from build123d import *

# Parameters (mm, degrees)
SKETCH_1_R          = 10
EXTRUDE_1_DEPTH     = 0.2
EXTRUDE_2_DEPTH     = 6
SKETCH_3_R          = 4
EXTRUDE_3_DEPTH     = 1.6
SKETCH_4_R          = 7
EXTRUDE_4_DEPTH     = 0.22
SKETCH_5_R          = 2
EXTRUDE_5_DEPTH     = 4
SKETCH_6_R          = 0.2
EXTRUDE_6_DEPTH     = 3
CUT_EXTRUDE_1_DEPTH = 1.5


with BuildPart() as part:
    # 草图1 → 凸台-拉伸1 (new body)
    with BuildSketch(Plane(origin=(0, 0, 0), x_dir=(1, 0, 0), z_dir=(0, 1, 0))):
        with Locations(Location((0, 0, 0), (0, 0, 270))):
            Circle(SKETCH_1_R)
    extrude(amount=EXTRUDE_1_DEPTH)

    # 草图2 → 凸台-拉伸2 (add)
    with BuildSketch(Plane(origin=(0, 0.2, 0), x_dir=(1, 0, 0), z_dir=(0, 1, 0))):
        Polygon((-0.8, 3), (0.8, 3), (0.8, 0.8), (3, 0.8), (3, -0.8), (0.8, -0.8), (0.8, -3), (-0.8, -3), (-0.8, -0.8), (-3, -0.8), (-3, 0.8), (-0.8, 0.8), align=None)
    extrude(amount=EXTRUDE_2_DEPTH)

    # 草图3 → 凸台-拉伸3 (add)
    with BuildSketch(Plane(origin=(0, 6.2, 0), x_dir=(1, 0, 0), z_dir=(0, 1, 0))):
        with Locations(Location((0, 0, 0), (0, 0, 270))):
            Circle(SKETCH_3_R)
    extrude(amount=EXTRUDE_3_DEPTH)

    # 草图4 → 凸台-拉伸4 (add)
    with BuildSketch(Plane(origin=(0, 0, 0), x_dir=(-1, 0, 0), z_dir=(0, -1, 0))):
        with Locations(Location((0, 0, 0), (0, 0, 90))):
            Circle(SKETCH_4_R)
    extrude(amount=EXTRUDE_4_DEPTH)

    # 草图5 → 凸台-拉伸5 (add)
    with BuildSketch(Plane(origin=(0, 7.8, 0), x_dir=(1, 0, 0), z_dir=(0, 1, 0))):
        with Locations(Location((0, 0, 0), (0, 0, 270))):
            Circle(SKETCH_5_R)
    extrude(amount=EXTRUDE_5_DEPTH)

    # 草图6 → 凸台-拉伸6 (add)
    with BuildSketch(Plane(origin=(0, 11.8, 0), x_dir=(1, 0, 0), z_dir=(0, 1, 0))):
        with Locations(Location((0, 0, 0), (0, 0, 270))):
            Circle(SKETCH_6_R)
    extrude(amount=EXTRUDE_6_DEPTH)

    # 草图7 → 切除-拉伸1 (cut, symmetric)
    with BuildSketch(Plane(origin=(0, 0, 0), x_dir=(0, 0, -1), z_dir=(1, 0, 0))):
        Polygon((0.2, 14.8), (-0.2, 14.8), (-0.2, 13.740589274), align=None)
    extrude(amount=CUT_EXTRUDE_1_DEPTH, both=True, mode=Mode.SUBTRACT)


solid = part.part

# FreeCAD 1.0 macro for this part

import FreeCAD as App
import Part
import Sketcher

V = App.Vector
Q = App.Units.Quantity


def add_polygon(sketch, points):
    """Adds a closed chain of lines whose ends are joined by coincident constraints."""
    first, n = sketch.GeometryCount, len(points)
    for a, b in zip(points, points[1:] + points[:1]):
        sketch.addGeometry(Part.LineSegment(App.Vector(*a, 0), App.Vector(*b, 0)), False)
    for i in range(n):
        sketch.addConstraint(Sketcher.Constraint("Coincident", first + i, 2, first + (i + 1) % n, 1))

doc = App.newDocument("Part")
params = doc.addObject("Spreadsheet::Sheet", "Params")
for row, (alias, value) in enumerate([
    ("sketch1_diameter", "20 mm"),
    ("pad1_length", "0.2 mm"),
    ("sketch2_width", "1.6 mm"),
    ("sketch2_width2", "2.2 mm"),
    ("pad2_length", "6 mm"),
    ("sketch3_diameter", "8 mm"),
    ("pad3_length", "1.6 mm"),
    ("sketch4_diameter", "14 mm"),
    ("pad4_length", "0.22 mm"),
    ("sketch5_diameter", "4 mm"),
    ("pad5_length", "4 mm"),
    ("sketch6_diameter", "0.4 mm"),
    ("pad6_length", "3 mm"),
    ("sketch7_height", "0.4 mm"),
    ("pocket1_length", "3 mm"),
], start=1):
    params.set(f"A{row}", alias)
    params.set(f"B{row}", "=" + value)
    params.setAlias(f"B{row}", alias)

body = doc.addObject("PartDesign::Body", "Body")

# Sketch on XZ plane
sketch1 = doc.addObject("Sketcher::SketchObject", "Sketch")
body.addObject(sketch1)
sketch1.AttachmentSupport = (doc.XZ_Plane, [""])
sketch1.MapMode = "FlatFace"
sketch1.addGeometry(Part.Circle(V(0, 0, 0), V(0, 0, 1), 10), False)
sketch1.addConstraint([
    Sketcher.Constraint("Coincident", 0, 3, -1, 1),
    Sketcher.Constraint("Diameter", 0, Q("20 mm")),
])
sketch1.setExpression("Constraints[1]", "Params.sketch1_diameter")
pad1 = doc.addObject("PartDesign::Pad", "Pad")
body.addObject(pad1)
pad1.Profile = sketch1
pad1.setExpression("Length", "Params.pad1_length")
pad1.Reversed = True

# Sketch on XZ plane
sketch2 = doc.addObject("Sketcher::SketchObject", "Sketch001")
body.addObject(sketch2)
sketch2.AttachmentSupport = (doc.XZ_Plane, [""])
sketch2.MapMode = "FlatFace"
sketch2.AttachmentOffset = App.Placement(V(0, 0, -0.2), App.Rotation())
add_polygon(sketch2, [(0.8, -3), (-0.8, -3), (-0.8, -0.8), (-3, -0.8), (-3, 0.8), (-0.8, 0.8), (-0.8, 3), (0.8, 3), (0.8, 0.8), (3, 0.8), (3, -0.8), (0.8, -0.8)])  # lines 0-11
sketch2.addConstraint([
    Sketcher.Constraint("Horizontal", 0),
    Sketcher.Constraint("Vertical", 1),
    Sketcher.Constraint("Horizontal", 2),
    Sketcher.Constraint("Vertical", 3),
    Sketcher.Constraint("Horizontal", 4),
    Sketcher.Constraint("Vertical", 5),
    Sketcher.Constraint("Horizontal", 6),
    Sketcher.Constraint("Vertical", 7),
    Sketcher.Constraint("Horizontal", 8),
    Sketcher.Constraint("Vertical", 9),
    Sketcher.Constraint("Horizontal", 10),
    Sketcher.Constraint("Vertical", 11),
    Sketcher.Constraint("Symmetric", 0, 2, 6, 2, -1, 1),
    Sketcher.Constraint("Symmetric", 2, 2, 8, 2, -1, 1),
    Sketcher.Constraint("Symmetric", 4, 2, 10, 2, -1, 1),
    Sketcher.Constraint("Symmetric", 4, 2, 7, 2, -2),
    Sketcher.Constraint("Equal", 10, 1),
    Sketcher.Constraint("Equal", 6, 3),
    Sketcher.Constraint("DistanceX", 0, 2, 0, 1, Q("1.6 mm")),
    Sketcher.Constraint("DistanceX", 2, 2, 2, 1, Q("2.2 mm")),
])
sketch2.setExpression("Constraints[30]", "Params.sketch2_width")
sketch2.setExpression("Constraints[31]", "Params.sketch2_width2")
pad2 = doc.addObject("PartDesign::Pad", "Pad001")
body.addObject(pad2)
pad2.Profile = sketch2
pad2.setExpression("Length", "Params.pad2_length")
pad2.Reversed = True

# Sketch on XZ plane
sketch3 = doc.addObject("Sketcher::SketchObject", "Sketch002")
body.addObject(sketch3)
sketch3.AttachmentSupport = (doc.XZ_Plane, [""])
sketch3.MapMode = "FlatFace"
sketch3.AttachmentOffset = App.Placement(V(0, 0, -6.2), App.Rotation())
sketch3.addGeometry(Part.Circle(V(0, 0, 0), V(0, 0, 1), 4), False)
sketch3.addConstraint([
    Sketcher.Constraint("Coincident", 0, 3, -1, 1),
    Sketcher.Constraint("Diameter", 0, Q("8 mm")),
])
sketch3.setExpression("Constraints[1]", "Params.sketch3_diameter")
pad3 = doc.addObject("PartDesign::Pad", "Pad002")
body.addObject(pad3)
pad3.Profile = sketch3
pad3.setExpression("Length", "Params.pad3_length")
pad3.Reversed = True

# Sketch on XZ plane
sketch4 = doc.addObject("Sketcher::SketchObject", "Sketch003")
body.addObject(sketch4)
sketch4.AttachmentSupport = (doc.XZ_Plane, [""])
sketch4.MapMode = "FlatFace"
sketch4.addGeometry(Part.Circle(V(0, 0, 0), V(0, 0, 1), 7), False)
sketch4.addConstraint([
    Sketcher.Constraint("Coincident", 0, 3, -1, 1),
    Sketcher.Constraint("Diameter", 0, Q("14 mm")),
])
sketch4.setExpression("Constraints[1]", "Params.sketch4_diameter")
pad4 = doc.addObject("PartDesign::Pad", "Pad003")
body.addObject(pad4)
pad4.Profile = sketch4
pad4.setExpression("Length", "Params.pad4_length")

# Sketch on XZ plane
sketch5 = doc.addObject("Sketcher::SketchObject", "Sketch004")
body.addObject(sketch5)
sketch5.AttachmentSupport = (doc.XZ_Plane, [""])
sketch5.MapMode = "FlatFace"
sketch5.AttachmentOffset = App.Placement(V(0, 0, -7.8), App.Rotation())
sketch5.addGeometry(Part.Circle(V(0, 0, 0), V(0, 0, 1), 2), False)
sketch5.addConstraint([
    Sketcher.Constraint("Coincident", 0, 3, -1, 1),
    Sketcher.Constraint("Diameter", 0, Q("4 mm")),
])
sketch5.setExpression("Constraints[1]", "Params.sketch5_diameter")
pad5 = doc.addObject("PartDesign::Pad", "Pad004")
body.addObject(pad5)
pad5.Profile = sketch5
pad5.setExpression("Length", "Params.pad5_length")
pad5.Reversed = True

# Sketch on XZ plane
sketch6 = doc.addObject("Sketcher::SketchObject", "Sketch005")
body.addObject(sketch6)
sketch6.AttachmentSupport = (doc.XZ_Plane, [""])
sketch6.MapMode = "FlatFace"
sketch6.AttachmentOffset = App.Placement(V(0, 0, -11.8), App.Rotation())
sketch6.addGeometry(Part.Circle(V(0, 0, 0), V(0, 0, 1), 0.2), False)
sketch6.addConstraint([
    Sketcher.Constraint("Coincident", 0, 3, -1, 1),
    Sketcher.Constraint("Diameter", 0, Q("0.4 mm")),
])
sketch6.setExpression("Constraints[1]", "Params.sketch6_diameter")
pad6 = doc.addObject("PartDesign::Pad", "Pad005")
body.addObject(pad6)
pad6.Profile = sketch6
pad6.setExpression("Length", "Params.pad6_length")
pad6.Reversed = True

# Sketch on YZ plane
sketch7 = doc.addObject("Sketcher::SketchObject", "Sketch006")
body.addObject(sketch7)
sketch7.AttachmentSupport = (doc.YZ_Plane, [""])
sketch7.MapMode = "FlatFace"
add_polygon(sketch7, [(14.8, -0.2), (14.8, 0.2), (13.74, 0.2)])  # lines 0-2
sketch7.addConstraint([
    Sketcher.Constraint("Vertical", 0),
    Sketcher.Constraint("Horizontal", 1),
    Sketcher.Constraint("DistanceY", 0, 1, 0, 2, Q("0.4 mm")),
    Sketcher.Constraint("DistanceX", -1, 1, 0, 2, Q("14.8 mm")),
    Sketcher.Constraint("DistanceY", -1, 1, 0, 2, Q("0.2 mm")),
    Sketcher.Constraint("DistanceX", 1, 2, 1, 1, Q("1.059411 mm")),
])
sketch7.setExpression("Constraints[5]", "Params.sketch7_height")
pocket1 = doc.addObject("PartDesign::Pocket", "Pocket")
body.addObject(pocket1)
pocket1.Profile = sketch7
pocket1.setExpression("Length", "Params.pocket1_length")
pocket1.Midplane = True

doc.recompute()
